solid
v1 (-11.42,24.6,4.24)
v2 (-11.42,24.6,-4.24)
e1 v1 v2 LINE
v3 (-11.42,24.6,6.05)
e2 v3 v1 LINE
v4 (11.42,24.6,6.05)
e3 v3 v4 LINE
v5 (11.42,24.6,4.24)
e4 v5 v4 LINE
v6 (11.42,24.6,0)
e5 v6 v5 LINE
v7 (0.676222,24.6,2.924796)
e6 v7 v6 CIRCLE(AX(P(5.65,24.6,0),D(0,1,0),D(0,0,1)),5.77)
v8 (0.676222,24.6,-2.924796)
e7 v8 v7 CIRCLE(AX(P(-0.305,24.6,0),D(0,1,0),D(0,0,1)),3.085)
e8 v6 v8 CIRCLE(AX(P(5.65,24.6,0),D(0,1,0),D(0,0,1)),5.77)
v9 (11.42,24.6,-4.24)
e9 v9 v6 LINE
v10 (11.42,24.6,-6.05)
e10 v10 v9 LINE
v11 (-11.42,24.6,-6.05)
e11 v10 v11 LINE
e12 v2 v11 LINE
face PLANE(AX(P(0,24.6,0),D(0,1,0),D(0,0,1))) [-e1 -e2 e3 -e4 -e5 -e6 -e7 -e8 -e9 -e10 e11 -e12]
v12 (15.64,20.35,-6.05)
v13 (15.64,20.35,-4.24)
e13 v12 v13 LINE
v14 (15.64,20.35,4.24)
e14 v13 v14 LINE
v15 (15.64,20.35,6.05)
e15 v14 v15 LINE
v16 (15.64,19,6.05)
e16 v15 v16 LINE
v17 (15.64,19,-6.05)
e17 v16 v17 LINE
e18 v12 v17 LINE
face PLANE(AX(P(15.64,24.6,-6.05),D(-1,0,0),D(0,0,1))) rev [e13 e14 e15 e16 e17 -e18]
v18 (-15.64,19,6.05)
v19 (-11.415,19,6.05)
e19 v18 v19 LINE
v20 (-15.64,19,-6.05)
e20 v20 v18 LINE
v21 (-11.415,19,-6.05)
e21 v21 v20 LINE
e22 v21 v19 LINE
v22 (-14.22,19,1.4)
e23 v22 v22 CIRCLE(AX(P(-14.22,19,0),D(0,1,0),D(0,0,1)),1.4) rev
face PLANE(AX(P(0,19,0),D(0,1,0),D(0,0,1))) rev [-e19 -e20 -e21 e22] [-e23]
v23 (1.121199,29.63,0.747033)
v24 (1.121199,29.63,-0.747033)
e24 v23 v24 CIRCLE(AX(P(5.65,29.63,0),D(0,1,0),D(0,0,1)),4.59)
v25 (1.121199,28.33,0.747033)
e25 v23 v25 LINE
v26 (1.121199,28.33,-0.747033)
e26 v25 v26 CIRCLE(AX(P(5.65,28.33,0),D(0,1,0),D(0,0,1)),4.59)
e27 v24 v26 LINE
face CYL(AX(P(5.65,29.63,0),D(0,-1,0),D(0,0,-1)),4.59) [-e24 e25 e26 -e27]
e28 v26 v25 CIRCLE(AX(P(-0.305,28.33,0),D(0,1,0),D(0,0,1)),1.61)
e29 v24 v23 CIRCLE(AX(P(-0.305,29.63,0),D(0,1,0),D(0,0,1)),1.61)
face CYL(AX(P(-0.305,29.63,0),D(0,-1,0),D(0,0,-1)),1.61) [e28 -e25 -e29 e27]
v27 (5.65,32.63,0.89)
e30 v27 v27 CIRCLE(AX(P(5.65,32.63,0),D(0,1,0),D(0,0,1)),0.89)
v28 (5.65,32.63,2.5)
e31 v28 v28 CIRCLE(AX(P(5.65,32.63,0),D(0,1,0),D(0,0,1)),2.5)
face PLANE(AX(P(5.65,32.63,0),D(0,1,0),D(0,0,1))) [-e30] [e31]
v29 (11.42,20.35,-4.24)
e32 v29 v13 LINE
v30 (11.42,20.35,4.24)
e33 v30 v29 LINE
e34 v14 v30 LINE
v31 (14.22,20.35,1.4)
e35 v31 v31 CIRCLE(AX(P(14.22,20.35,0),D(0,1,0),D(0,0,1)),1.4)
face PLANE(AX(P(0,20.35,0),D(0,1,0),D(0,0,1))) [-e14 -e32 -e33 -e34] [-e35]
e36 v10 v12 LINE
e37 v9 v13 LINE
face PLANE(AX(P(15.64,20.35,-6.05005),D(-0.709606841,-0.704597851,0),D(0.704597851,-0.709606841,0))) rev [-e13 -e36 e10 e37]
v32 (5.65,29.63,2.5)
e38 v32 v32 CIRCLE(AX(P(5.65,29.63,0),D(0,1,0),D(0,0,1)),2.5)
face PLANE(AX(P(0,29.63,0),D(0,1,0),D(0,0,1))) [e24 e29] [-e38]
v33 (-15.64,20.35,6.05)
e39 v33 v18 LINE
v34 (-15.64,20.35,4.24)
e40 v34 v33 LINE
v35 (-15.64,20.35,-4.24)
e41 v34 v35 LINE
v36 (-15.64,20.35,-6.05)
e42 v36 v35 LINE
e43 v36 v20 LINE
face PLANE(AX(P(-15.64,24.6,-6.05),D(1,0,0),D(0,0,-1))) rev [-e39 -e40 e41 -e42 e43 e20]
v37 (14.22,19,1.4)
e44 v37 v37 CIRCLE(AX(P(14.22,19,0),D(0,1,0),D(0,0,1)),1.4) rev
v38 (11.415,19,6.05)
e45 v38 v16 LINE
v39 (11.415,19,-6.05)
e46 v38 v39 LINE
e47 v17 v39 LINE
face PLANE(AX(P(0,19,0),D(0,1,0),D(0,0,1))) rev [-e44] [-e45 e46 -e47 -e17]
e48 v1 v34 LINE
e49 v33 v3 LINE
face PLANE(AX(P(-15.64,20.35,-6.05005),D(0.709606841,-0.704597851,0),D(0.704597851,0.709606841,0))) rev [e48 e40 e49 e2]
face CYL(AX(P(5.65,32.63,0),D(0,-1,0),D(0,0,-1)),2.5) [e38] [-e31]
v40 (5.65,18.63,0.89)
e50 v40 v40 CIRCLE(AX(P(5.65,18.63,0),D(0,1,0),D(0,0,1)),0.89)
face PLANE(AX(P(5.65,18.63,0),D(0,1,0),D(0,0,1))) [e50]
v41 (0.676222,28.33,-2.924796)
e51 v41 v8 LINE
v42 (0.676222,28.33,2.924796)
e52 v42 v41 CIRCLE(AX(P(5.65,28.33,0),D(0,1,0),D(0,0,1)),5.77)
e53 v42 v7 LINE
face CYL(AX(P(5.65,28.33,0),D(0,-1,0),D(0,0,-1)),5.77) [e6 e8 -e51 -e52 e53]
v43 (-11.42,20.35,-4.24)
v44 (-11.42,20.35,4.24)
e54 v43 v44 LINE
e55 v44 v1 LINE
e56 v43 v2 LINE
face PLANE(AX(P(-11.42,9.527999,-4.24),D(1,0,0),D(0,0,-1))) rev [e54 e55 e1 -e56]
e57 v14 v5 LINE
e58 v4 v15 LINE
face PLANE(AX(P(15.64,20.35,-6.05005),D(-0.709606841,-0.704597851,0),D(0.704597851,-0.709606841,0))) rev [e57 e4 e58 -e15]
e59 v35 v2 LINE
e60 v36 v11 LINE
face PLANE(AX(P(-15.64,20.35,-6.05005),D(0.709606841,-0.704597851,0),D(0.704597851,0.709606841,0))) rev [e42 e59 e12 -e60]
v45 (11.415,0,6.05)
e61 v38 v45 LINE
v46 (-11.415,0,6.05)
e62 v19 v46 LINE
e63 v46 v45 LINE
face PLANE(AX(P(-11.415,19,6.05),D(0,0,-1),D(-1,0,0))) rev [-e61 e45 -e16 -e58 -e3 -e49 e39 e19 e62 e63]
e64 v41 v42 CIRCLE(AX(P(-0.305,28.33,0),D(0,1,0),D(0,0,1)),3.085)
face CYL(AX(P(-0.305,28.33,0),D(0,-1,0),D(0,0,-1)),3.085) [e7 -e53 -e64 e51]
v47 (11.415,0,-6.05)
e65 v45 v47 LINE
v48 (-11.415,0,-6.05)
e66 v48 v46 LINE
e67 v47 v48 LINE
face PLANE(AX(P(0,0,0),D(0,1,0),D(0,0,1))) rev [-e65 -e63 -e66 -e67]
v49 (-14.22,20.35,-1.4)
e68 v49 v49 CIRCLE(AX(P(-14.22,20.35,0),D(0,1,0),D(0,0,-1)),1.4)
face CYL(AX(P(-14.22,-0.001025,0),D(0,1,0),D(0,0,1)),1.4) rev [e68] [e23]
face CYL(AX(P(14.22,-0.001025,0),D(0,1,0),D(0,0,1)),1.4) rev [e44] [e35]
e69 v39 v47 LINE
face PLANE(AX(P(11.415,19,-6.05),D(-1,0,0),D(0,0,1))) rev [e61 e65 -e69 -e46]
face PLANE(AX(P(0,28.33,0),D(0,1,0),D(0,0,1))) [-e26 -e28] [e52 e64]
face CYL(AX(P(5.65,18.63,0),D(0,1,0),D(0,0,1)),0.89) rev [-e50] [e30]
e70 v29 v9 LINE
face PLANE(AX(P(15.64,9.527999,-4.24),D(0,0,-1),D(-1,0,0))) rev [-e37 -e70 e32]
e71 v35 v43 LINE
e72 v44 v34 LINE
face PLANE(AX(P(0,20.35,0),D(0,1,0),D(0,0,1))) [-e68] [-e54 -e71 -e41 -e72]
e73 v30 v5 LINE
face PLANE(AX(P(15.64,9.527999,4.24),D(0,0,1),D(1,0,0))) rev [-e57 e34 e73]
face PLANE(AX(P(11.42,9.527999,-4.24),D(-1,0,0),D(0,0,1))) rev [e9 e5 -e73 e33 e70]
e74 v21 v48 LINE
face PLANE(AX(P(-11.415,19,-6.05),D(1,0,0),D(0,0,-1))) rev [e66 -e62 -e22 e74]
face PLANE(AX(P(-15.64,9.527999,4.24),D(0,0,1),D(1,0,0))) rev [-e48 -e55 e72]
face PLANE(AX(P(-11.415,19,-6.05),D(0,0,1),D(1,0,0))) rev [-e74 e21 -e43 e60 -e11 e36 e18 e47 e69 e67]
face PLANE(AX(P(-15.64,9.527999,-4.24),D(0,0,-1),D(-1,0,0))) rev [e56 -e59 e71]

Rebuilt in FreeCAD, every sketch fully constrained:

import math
import FreeCAD as App
import Part
import Sketcher


def add_polygon(sketch, points):
    """Adds a closed chain of lines whose ends are joined by coincident constraints."""
    first, n = sketch.GeometryCount, len(points)
    for a, b in zip(points, points[1:] + points[:1]):
        sketch.addGeometry(Part.LineSegment(App.Vector(*a, 0), App.Vector(*b, 0)), False)
    for i in range(n):
        sketch.addConstraint(Sketcher.Constraint("Coincident", first + i, 2, first + (i + 1) % n, 1))

doc = App.newDocument("Part")
body = doc.addObject("PartDesign::Body", "Body")

# Sketch on XZ plane
sketch1 = body.newObject("Sketcher::SketchObject", "Sketch")
sketch1.AttachmentSupport = (doc.getObject("XZ_Plane"), [""])
sketch1.MapMode = "FlatFace"
add_polygon(sketch1, [(-11.415, -6.05), (-11.415, 6.05), (11.415, 6.05), (11.415, -6.05)])  # lines 0-3
sketch1.addConstraint(Sketcher.Constraint("Vertical", 0))
sketch1.addConstraint(Sketcher.Constraint("Horizontal", 1))
sketch1.addConstraint(Sketcher.Constraint("Vertical", 2))
sketch1.addConstraint(Sketcher.Constraint("Horizontal", 3))
sketch1.addConstraint(Sketcher.Constraint("Symmetric", 0, 2, 2, 2, -1, 1))
sketch1.addConstraint(Sketcher.Constraint("DistanceY", 0, 1, 0, 2, 12.1))
sketch1.addConstraint(Sketcher.Constraint("DistanceX", 1, 1, 1, 2, 22.83))
pad1 = body.newObject("PartDesign::Pad", "Pad")
pad1.Profile = sketch1
pad1.Length = 19
pad1.Reversed = True

# Sketch on XZ plane
sketch2 = body.newObject("Sketcher::SketchObject", "Sketch001")
sketch2.AttachmentSupport = (doc.getObject("XZ_Plane"), [""])
sketch2.MapMode = "FlatFace"
sketch2.AttachmentOffset = App.Placement(App.Vector(0, 0, -19), App.Rotation())
add_polygon(sketch2, [(-15.64, -6.05), (-15.64, 6.05), (15.64, 6.05), (15.64, -6.05)])  # lines 0-3
sketch2.addConstraint(Sketcher.Constraint("Vertical", 0))
sketch2.addConstraint(Sketcher.Constraint("Horizontal", 1))
sketch2.addConstraint(Sketcher.Constraint("Vertical", 2))
sketch2.addConstraint(Sketcher.Constraint("Horizontal", 3))
sketch2.addConstraint(Sketcher.Constraint("Symmetric", 0, 2, 2, 2, -1, 1))
sketch2.addConstraint(Sketcher.Constraint("DistanceY", 0, 1, 0, 2, 12.1))
sketch2.addConstraint(Sketcher.Constraint("DistanceX", 1, 1, 1, 2, 31.28))
pad2 = body.newObject("PartDesign::Pad", "Pad001")
pad2.Profile = sketch2
pad2.Length = 5.6
pad2.Reversed = True

# Sketch on XY plane
sketch3 = body.newObject("Sketcher::SketchObject", "Sketch002")
sketch3.AttachmentSupport = (doc.getObject("XY_Plane"), [""])
sketch3.MapMode = "FlatFace"
sketch3.AttachmentOffset = App.Placement(App.Vector(0, 0, 6.05), App.Rotation())
add_polygon(sketch3, [(-15.64, 20.35), (-11.42, 24.6), (-15.64, 24.6)])  # lines 0-2
add_polygon(sketch3, [(15.64, 20.35), (15.64, 24.6), (11.42, 24.6)])  # lines 3-5
sketch3.addConstraint(Sketcher.Constraint("Horizontal", 1))
sketch3.addConstraint(Sketcher.Constraint("Vertical", 2))
sketch3.addConstraint(Sketcher.Constraint("Vertical", 3))
sketch3.addConstraint(Sketcher.Constraint("Horizontal", 4))
sketch3.addConstraint(Sketcher.Constraint("Symmetric", 1, 2, 3, 2, -2))
sketch3.addConstraint(Sketcher.Constraint("Horizontal", 2, 2, 5, 2))
sketch3.addConstraint(Sketcher.Constraint("Equal", 1, 4))
sketch3.addConstraint(Sketcher.Constraint("DistanceX", 1, 2, 1, 1, 4.22))
sketch3.addConstraint(Sketcher.Constraint("DistanceY", 2, 2, 2, 1, 4.25))
sketch3.addConstraint(Sketcher.Constraint("DistanceY", -1, 1, 0, 2, 24.6))
sketch3.addConstraint(Sketcher.Constraint("DistanceX", 0, 2, -1, 1, 11.42))
pocket1 = body.newObject("PartDesign::Pocket", "Pocket")
pocket1.Profile = sketch3
pocket1.Type = "ThroughAll"

# Sketch on XZ plane
sketch4 = body.newObject("Sketcher::SketchObject", "Sketch003")
sketch4.AttachmentSupport = (doc.getObject("XZ_Plane"), [""])
sketch4.MapMode = "FlatFace"
sketch4.AttachmentOffset = App.Placement(App.Vector(0, 0, -24.6), App.Rotation())
add_polygon(sketch4, [(11.42, -4.24), (11.42, 4.24), (15.64, 4.24), (15.64, -4.24)])  # lines 0-3
add_polygon(sketch4, [(-15.64, -4.24), (-15.64, 4.24), (-11.42, 4.24), (-11.42, -4.24)])  # lines 4-7
sketch4.addConstraint(Sketcher.Constraint("Vertical", 0))
sketch4.addConstraint(Sketcher.Constraint("Horizontal", 1))
sketch4.addConstraint(Sketcher.Constraint("Vertical", 2))
sketch4.addConstraint(Sketcher.Constraint("Horizontal", 3))
sketch4.addConstraint(Sketcher.Constraint("Vertical", 4))
sketch4.addConstraint(Sketcher.Constraint("Horizontal", 5))
sketch4.addConstraint(Sketcher.Constraint("Vertical", 6))
sketch4.addConstraint(Sketcher.Constraint("Horizontal", 7))
sketch4.addConstraint(Sketcher.Constraint("Symmetric", 2, 2, 4, 2, -1, 1))
sketch4.addConstraint(Sketcher.Constraint("Symmetric", 0, 2, 6, 2, -1, 1))
sketch4.addConstraint(Sketcher.Constraint("Horizontal", 1, 2, 4, 2))
sketch4.addConstraint(Sketcher.Constraint("DistanceX", 1, 1, 1, 2, 4.22))
sketch4.addConstraint(Sketcher.Constraint("DistanceY", 0, 1, 0, 2, 8.48))
sketch4.addConstraint(Sketcher.Constraint("DistanceX", -1, 1, 0, 2, 11.42))
pocket2 = body.newObject("PartDesign::Pocket", "Pocket001")
pocket2.Profile = sketch4
pocket2.Length = 4.25
pocket2.Reversed = True

# Sketch on XZ plane
sketch5 = body.newObject("Sketcher::SketchObject", "Sketch004")
sketch5.AttachmentSupport = (doc.getObject("XZ_Plane"), [""])
sketch5.MapMode = "FlatFace"
sketch5.AttachmentOffset = App.Placement(App.Vector(0, 0, -20.35), App.Rotation())
sketch5.addGeometry(Part.Circle(App.Vector(14.22, 0, 0), App.Vector(0, 0, 1), 1.4), False)
sketch5.addConstraint(Sketcher.Constraint("PointOnObject", 0, 3, -1))
sketch5.addConstraint(Sketcher.Constraint("Diameter", 0, 2.8))
sketch5.addConstraint(Sketcher.Constraint("DistanceX", -1, 1, 0, 3, 14.22))
pocket3 = body.newObject("PartDesign::Pocket", "Pocket002")
pocket3.Profile = sketch5
pocket3.Type = "UpToFirst"
pocket3.Reversed = True

# Sketch on XZ plane
sketch6 = body.newObject("Sketcher::SketchObject", "Sketch005")
sketch6.AttachmentSupport = (doc.getObject("XZ_Plane"), [""])
sketch6.MapMode = "FlatFace"
sketch6.AttachmentOffset = App.Placement(App.Vector(0, 0, -20.35), App.Rotation())
sketch6.addGeometry(Part.Circle(App.Vector(-14.22, 0, 0), App.Vector(0, 0, 1), 1.4), False)
sketch6.addConstraint(Sketcher.Constraint("PointOnObject", 0, 3, -1))
sketch6.addConstraint(Sketcher.Constraint("Diameter", 0, 2.8))
sketch6.addConstraint(Sketcher.Constraint("DistanceX", 0, 3, -1, 1, 14.22))
pocket4 = body.newObject("PartDesign::Pocket", "Pocket003")
pocket4.Profile = sketch6
pocket4.Type = "UpToFirst"
pocket4.Reversed = True

# Sketch on XZ plane
sketch7 = body.newObject("Sketcher::SketchObject", "Sketch006")
sketch7.AttachmentSupport = (doc.getObject("XZ_Plane"), [""])
sketch7.MapMode = "FlatFace"
sketch7.AttachmentOffset = App.Placement(App.Vector(0, 0, -24.6), App.Rotation())
sketch7.addGeometry(Part.ArcOfCircle(Part.Circle(App.Vector(-0.305, 0, 0), App.Vector(0, 0, 1), 3.085), math.radians(71.454229), math.radians(288.545771)), False)
sketch7.addGeometry(Part.ArcOfCircle(Part.Circle(App.Vector(5.65, 0, 0), App.Vector(0, 0, 1), 5.77), math.radians(-149.542641), math.radians(149.542641)), False)
sketch7.addConstraint(Sketcher.Constraint("Coincident", 0, 1, 1, 2))
sketch7.addConstraint(Sketcher.Constraint("Coincident", 1, 1, 0, 2))
sketch7.addConstraint(Sketcher.Constraint("Symmetric", 0, 1, 1, 1, -1))
sketch7.addConstraint(Sketcher.Constraint("Radius", 1, 5.77))
sketch7.addConstraint(Sketcher.Constraint("Radius", 0, 3.085))
sketch7.addConstraint(Sketcher.Constraint("DistanceX", -1, 1, 1, 3, 5.65))
sketch7.addConstraint(Sketcher.Constraint("DistanceX", 0, 3, -1, 1, 0.305))
pad3 = body.newObject("PartDesign::Pad", "Pad002")
pad3.Profile = sketch7
pad3.Length = 3.73
pad3.Reversed = True

# Sketch on XZ plane
sketch8 = body.newObject("Sketcher::SketchObject", "Sketch007")
sketch8.AttachmentSupport = (doc.getObject("XZ_Plane"), [""])
sketch8.MapMode = "FlatFace"
sketch8.AttachmentOffset = App.Placement(App.Vector(0, 0, -28.33), App.Rotation())
sketch8.addGeometry(Part.ArcOfCircle(Part.Circle(App.Vector(-0.305, 0, 0), App.Vector(0, 0, 1), 1.61), math.radians(27.645224), math.radians(332.354776)), False)
sketch8.addGeometry(Part.ArcOfCircle(Part.Circle(App.Vector(5.65, 0, 0), App.Vector(0, 0, 1), 4.59), math.radians(-170.633321), math.radians(170.633321)), False)
sketch8.addConstraint(Sketcher.Constraint("Coincident", 0, 1, 1, 2))
sketch8.addConstraint(Sketcher.Constraint("Coincident", 1, 1, 0, 2))
sketch8.addConstraint(Sketcher.Constraint("Symmetric", 0, 1, 1, 1, -1))
sketch8.addConstraint(Sketcher.Constraint("Radius", 0, 1.61))
sketch8.addConstraint(Sketcher.Constraint("Radius", 1, 4.59))
sketch8.addConstraint(Sketcher.Constraint("DistanceX", -1, 1, 1, 3, 5.65))
sketch8.addConstraint(Sketcher.Constraint("DistanceX", 0, 3, -1, 1, 0.305))
pad4 = body.newObject("PartDesign::Pad", "Pad003")
pad4.Profile = sketch8
pad4.Length = 1.3
pad4.Reversed = True

# Sketch on XZ plane
sketch9 = body.newObject("Sketcher::SketchObject", "Sketch008")
sketch9.AttachmentSupport = (doc.getObject("XZ_Plane"), [""])
sketch9.MapMode = "FlatFace"
sketch9.AttachmentOffset = App.Placement(App.Vector(0, 0, -29.63), App.Rotation())
sketch9.addGeometry(Part.Circle(App.Vector(5.65, 0, 0), App.Vector(0, 0, 1), 2.5), False)
sketch9.addConstraint(Sketcher.Constraint("PointOnObject", 0, 3, -1))
sketch9.addConstraint(Sketcher.Constraint("Diameter", 0, 5.0))
sketch9.addConstraint(Sketcher.Constraint("DistanceX", -1, 1, 0, 3, 5.65))
pad5 = body.newObject("PartDesign::Pad", "Pad004")
pad5.Profile = sketch9
pad5.Length = 3
pad5.Reversed = True

# Sketch on XZ plane
sketch10 = body.newObject("Sketcher::SketchObject", "Sketch009")
sketch10.AttachmentSupport = (doc.getObject("XZ_Plane"), [""])
sketch10.MapMode = "FlatFace"
sketch10.AttachmentOffset = App.Placement(App.Vector(0, 0, -32.63), App.Rotation())
sketch10.addGeometry(Part.Circle(App.Vector(5.65, 0, 0), App.Vector(0, 0, 1), 0.89), False)
sketch10.addConstraint(Sketcher.Constraint("PointOnObject", 0, 3, -1))
sketch10.addConstraint(Sketcher.Constraint("Diameter", 0, 1.78))
sketch10.addConstraint(Sketcher.Constraint("DistanceX", -1, 1, 0, 3, 5.65))
pocket5 = body.newObject("PartDesign::Pocket", "Pocket004")
pocket5.Profile = sketch10
pocket5.Length = 14
pocket5.Reversed = True

doc.recompute()
